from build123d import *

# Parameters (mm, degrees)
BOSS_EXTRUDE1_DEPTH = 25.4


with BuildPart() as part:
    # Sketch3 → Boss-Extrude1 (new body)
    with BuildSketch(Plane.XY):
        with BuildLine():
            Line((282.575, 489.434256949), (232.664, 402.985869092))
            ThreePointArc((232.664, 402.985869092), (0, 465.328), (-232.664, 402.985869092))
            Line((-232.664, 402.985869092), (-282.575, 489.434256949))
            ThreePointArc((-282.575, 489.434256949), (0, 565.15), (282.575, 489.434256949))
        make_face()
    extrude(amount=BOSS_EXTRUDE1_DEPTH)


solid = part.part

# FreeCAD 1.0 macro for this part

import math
import FreeCAD as App
import Part
import Sketcher
Q = App.Units.Quantity

doc = App.newDocument("Part")
body = doc.addObject("PartDesign::Body", "Body")

sketch1 = doc.addObject("Sketcher::SketchObject", "Sketch")
body.addObject(sketch1)
sketch1.AttachmentSupport = (doc.XY_Plane, [""])
sketch1.MapMode = "FlatFace"
sketch1.addGeometry(Part.LineSegment(App.Vector(232.664, 402.985869, 0), App.Vector(282.575, 489.434257, 0)), False)
sketch1.addGeometry(Part.ArcOfCircle(Part.Circle(App.Vector(0, 0, 0), App.Vector(0, 0, 1), 565.15), math.radians(60), math.radians(120)), False)
sketch1.addGeometry(Part.LineSegment(App.Vector(-282.575, 489.434257, 0), App.Vector(-232.664, 402.985869, 0)), False)
sketch1.addGeometry(Part.ArcOfCircle(Part.Circle(App.Vector(0, 0, 0), App.Vector(0, 0, 1), 465.328), math.radians(60), math.radians(120)), False)
sketch1.addConstraint(Sketcher.Constraint("Coincident", 0, 2, 1, 1))
sketch1.addConstraint(Sketcher.Constraint("Coincident", 1, 2, 2, 1))
sketch1.addConstraint(Sketcher.Constraint("Coincident", 2, 2, 3, 2))
sketch1.addConstraint(Sketcher.Constraint("Coincident", 3, 1, 0, 1))
sketch1.addConstraint(Sketcher.Constraint("Coincident", 1, 3, -1, 1))
sketch1.addConstraint(Sketcher.Constraint("Coincident", 3, 3, -1, 1))
sketch1.addConstraint(Sketcher.Constraint("Horizontal", 0, 2, 1, 2))
sketch1.addConstraint(Sketcher.Constraint("Horizontal", 2, 2, 3, 1))
sketch1.addConstraint(Sketcher.Constraint("Radius", 1, Q("22.25 in")))
sketch1.addConstraint(Sketcher.Constraint("Radius", 3, Q("18.32 in")))
sketch1.addConstraint(Sketcher.Constraint("Angle", 0, Q("60 deg")))
sketch1.addConstraint(Sketcher.Constraint("DistanceX", 2, 2, -1, 1, Q("9.16 in")))
pad1 = doc.addObject("PartDesign::Pad", "Pad")
body.addObject(pad1)
pad1.Profile = sketch1
pad1.Length = Q("1 in")

doc.recompute()
